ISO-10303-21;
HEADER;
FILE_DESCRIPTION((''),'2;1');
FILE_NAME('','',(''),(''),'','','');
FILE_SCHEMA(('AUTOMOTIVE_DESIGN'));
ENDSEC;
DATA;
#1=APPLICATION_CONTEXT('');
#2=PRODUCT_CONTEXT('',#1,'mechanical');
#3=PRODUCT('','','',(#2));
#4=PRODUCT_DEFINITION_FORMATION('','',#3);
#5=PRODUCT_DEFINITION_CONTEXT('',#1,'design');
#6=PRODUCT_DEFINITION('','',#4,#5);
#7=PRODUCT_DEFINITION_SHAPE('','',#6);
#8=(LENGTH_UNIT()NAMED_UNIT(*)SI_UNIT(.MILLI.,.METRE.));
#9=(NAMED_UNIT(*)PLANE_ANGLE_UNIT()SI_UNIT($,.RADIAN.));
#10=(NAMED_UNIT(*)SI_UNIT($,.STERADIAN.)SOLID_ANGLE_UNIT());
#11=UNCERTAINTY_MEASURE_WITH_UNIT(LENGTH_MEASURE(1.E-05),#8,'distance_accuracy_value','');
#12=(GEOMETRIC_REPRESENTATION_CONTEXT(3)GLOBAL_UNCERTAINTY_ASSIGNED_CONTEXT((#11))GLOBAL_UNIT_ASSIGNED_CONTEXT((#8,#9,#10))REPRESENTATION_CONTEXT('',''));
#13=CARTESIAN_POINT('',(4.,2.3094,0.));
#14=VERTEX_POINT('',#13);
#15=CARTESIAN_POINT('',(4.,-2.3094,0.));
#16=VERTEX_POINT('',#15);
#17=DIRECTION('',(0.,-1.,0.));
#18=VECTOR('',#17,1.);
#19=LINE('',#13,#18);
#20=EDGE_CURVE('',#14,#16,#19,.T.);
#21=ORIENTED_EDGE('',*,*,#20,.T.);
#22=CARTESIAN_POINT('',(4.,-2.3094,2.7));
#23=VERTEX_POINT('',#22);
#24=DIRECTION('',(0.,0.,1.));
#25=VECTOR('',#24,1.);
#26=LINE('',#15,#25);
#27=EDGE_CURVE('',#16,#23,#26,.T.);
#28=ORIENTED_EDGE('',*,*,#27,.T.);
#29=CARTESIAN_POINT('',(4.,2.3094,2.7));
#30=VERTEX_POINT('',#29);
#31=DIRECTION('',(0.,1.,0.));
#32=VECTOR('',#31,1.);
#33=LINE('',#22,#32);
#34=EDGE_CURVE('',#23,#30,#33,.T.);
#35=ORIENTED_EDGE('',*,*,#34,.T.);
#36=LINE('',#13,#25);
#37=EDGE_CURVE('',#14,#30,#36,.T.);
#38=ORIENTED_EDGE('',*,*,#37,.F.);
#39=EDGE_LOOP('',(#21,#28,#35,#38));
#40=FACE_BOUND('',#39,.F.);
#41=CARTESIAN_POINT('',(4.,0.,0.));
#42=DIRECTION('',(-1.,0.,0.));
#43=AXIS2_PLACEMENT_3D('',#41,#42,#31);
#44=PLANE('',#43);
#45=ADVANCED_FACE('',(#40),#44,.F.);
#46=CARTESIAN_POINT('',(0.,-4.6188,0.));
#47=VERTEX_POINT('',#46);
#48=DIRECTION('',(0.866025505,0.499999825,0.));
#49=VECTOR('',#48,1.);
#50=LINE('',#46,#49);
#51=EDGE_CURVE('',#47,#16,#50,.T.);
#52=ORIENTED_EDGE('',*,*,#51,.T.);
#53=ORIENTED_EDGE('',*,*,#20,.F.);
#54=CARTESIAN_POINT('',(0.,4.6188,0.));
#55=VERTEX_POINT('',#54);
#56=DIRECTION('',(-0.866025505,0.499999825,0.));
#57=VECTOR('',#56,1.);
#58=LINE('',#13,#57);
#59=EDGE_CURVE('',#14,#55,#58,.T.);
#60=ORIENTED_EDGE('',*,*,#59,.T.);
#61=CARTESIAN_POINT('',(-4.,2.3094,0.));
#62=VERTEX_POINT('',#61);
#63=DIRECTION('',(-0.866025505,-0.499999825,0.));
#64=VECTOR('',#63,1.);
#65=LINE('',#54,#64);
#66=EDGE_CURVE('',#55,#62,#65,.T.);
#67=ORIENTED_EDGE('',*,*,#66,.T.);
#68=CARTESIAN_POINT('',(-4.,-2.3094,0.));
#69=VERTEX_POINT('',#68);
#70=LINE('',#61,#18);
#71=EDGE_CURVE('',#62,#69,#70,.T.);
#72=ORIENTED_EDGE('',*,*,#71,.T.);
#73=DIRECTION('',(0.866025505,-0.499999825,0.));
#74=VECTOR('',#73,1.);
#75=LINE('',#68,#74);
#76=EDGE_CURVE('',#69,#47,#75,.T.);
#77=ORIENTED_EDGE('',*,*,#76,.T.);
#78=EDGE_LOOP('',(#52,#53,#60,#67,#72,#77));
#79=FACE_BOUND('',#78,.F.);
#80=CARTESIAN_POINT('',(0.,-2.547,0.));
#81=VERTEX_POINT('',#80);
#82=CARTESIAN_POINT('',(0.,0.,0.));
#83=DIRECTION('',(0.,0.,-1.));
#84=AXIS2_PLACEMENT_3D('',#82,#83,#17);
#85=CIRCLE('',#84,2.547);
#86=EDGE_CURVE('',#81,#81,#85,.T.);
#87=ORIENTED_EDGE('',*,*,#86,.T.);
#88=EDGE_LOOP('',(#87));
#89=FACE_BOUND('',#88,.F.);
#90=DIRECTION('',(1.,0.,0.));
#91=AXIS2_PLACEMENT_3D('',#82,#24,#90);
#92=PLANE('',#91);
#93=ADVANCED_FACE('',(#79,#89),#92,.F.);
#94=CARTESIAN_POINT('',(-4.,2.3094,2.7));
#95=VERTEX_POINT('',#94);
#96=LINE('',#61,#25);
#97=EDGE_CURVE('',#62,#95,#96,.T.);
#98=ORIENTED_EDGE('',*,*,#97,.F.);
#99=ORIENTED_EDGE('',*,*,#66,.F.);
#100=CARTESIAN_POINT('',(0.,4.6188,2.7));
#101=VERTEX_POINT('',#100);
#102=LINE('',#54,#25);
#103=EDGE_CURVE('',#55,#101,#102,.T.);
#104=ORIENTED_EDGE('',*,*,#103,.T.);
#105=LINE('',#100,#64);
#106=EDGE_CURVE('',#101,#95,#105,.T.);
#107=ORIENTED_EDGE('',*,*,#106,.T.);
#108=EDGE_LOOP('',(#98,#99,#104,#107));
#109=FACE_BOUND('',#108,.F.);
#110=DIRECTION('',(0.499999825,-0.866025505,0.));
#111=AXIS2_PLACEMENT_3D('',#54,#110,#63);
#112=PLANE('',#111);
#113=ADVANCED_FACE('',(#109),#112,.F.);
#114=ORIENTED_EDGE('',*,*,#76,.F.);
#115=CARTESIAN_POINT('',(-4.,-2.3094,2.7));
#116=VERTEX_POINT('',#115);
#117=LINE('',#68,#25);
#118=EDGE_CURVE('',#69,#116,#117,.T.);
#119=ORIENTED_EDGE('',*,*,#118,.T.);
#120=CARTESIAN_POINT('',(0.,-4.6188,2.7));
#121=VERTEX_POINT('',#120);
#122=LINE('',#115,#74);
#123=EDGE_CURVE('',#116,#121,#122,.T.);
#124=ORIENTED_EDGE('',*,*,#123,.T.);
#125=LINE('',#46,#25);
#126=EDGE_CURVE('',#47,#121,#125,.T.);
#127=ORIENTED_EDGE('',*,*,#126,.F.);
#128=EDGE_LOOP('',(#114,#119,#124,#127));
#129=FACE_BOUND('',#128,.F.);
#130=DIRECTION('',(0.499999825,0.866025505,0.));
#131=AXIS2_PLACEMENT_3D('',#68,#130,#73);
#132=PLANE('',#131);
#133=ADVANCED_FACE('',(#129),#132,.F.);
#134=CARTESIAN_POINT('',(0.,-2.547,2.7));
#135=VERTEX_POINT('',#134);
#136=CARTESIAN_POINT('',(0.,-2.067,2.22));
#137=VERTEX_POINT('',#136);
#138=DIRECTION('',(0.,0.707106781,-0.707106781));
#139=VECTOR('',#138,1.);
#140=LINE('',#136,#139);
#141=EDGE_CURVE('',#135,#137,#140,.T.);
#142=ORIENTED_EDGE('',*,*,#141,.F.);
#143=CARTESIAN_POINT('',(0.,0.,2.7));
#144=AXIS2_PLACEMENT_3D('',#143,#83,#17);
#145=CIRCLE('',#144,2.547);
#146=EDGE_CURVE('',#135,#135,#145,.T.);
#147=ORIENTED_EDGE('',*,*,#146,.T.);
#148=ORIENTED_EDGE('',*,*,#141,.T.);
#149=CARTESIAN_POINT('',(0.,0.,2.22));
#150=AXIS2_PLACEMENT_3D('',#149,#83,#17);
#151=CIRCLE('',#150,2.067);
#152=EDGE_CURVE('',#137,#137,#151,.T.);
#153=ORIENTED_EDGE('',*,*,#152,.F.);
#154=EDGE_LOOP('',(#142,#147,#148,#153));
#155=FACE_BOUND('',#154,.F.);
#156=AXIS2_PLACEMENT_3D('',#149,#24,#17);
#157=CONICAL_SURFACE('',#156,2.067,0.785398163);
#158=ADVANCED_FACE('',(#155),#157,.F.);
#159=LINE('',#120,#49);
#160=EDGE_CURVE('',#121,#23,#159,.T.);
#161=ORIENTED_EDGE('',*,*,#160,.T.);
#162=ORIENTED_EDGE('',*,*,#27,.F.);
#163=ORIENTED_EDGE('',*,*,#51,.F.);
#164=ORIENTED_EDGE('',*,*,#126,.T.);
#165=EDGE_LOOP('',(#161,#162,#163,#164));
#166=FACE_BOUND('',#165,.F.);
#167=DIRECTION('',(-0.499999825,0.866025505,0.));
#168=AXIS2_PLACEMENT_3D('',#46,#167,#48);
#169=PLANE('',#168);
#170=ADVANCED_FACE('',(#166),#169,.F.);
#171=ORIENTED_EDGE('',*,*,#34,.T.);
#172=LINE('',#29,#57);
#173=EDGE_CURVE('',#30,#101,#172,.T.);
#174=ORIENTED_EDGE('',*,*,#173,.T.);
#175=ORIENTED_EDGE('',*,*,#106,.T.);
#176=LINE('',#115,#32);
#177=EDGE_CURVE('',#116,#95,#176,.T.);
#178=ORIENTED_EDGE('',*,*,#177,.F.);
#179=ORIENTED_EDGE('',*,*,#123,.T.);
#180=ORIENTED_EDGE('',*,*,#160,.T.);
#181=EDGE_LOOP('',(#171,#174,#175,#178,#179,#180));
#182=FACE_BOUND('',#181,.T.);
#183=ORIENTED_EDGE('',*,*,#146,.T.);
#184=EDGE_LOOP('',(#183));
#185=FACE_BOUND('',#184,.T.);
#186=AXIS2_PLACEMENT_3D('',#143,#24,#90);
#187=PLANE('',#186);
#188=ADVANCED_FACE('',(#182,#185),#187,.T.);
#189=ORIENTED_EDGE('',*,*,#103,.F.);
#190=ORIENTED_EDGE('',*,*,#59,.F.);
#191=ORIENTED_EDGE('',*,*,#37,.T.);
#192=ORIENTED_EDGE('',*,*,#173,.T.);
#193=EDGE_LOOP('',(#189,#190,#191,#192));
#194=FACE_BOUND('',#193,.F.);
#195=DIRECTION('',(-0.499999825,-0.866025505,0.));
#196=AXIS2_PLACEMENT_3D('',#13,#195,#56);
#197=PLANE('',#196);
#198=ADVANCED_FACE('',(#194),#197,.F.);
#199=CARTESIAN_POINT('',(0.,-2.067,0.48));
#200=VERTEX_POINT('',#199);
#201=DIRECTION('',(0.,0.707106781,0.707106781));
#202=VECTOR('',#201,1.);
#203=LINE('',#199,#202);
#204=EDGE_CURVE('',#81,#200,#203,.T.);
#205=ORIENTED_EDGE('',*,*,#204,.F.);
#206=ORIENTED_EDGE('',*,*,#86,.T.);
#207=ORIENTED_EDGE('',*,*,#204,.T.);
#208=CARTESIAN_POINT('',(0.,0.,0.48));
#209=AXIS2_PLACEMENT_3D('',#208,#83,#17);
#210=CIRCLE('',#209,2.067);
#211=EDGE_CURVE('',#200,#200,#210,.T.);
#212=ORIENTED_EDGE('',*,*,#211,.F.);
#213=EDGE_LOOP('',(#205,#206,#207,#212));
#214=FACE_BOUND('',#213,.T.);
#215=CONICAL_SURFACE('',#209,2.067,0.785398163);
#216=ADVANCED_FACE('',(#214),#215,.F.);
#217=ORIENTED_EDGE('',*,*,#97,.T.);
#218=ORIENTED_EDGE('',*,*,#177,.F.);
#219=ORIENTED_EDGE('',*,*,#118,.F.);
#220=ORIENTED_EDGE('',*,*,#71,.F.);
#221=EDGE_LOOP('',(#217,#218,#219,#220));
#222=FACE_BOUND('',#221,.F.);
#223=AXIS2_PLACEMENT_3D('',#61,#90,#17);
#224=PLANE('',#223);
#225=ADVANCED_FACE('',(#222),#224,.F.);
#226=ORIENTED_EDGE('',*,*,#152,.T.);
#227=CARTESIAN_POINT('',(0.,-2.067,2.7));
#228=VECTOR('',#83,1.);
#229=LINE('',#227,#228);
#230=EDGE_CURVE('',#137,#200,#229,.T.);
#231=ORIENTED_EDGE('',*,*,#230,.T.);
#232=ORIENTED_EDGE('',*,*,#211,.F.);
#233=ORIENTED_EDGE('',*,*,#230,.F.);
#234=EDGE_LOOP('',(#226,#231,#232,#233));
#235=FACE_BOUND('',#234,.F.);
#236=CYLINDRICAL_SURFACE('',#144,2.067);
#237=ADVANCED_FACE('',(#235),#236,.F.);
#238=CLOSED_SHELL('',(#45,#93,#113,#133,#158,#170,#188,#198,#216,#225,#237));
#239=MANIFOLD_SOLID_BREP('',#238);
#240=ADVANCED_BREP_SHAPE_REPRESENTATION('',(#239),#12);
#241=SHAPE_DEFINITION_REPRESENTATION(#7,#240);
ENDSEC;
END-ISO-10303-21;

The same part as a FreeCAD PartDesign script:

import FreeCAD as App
import Part
import Sketcher

V = App.Vector
Q = App.Units.Quantity


def edges_at(feature, points):
    """Names of the edges that pass closest to the given points."""
    edges = feature.Shape.Edges
    near = lambda p: min(range(len(edges)), key=lambda i: edges[i].distToShape(Part.Vertex(*p))[0])
    return sorted({f"Edge{near(p) + 1}" for p in points})

doc = App.newDocument("Part")
body = doc.addObject("PartDesign::Body", "Body")

sketch1 = body.newObject("Sketcher::SketchObject", "Sketch")
sketch1.AttachmentSupport = (doc.getObject("XY_Plane"), [""])
sketch1.MapMode = "FlatFace"
sketch1.addGeometry(Part.LineSegment(V(0, 4.6, 0), V(-4, 2.3, 0)), False)
sketch1.addGeometry(Part.LineSegment(V(-4, 2.3, 0), V(-4, -2.3, 0)), False)
sketch1.addGeometry(Part.LineSegment(V(-4, -2.3, 0), V(0, -4.6, 0)), False)
sketch1.addGeometry(Part.LineSegment(V(0, -4.6, 0), V(4, -2.3, 0)), False)
sketch1.addGeometry(Part.LineSegment(V(4, -2.3, 0), V(4, 2.3, 0)), False)
sketch1.addGeometry(Part.LineSegment(V(4, 2.3, 0), V(0, 4.6, 0)), False)
sketch1.addConstraint(Sketcher.Constraint("Coincident", 0, 2, 1, 1))
sketch1.addConstraint(Sketcher.Constraint("Coincident", 1, 2, 2, 1))
sketch1.addConstraint(Sketcher.Constraint("Coincident", 2, 2, 3, 1))
sketch1.addConstraint(Sketcher.Constraint("Coincident", 3, 2, 4, 1))
sketch1.addConstraint(Sketcher.Constraint("Coincident", 4, 2, 5, 1))
sketch1.addConstraint(Sketcher.Constraint("Coincident", 5, 2, 0, 1))
sketch1.addConstraint(Sketcher.Constraint("Vertical", 1))
sketch1.addConstraint(Sketcher.Constraint("Vertical", 4))
sketch1.addConstraint(Sketcher.Constraint("Symmetric", 0, 2, 3, 2, -1, 1))
sketch1.addConstraint(Sketcher.Constraint("Symmetric", 2, 2, 5, 2, -1, 1))
sketch1.addConstraint(Sketcher.Constraint("PointOnObject", 2, 2, -2))
sketch1.addConstraint(Sketcher.Constraint("Parallel", 2, 5))
sketch1.addConstraint(Sketcher.Constraint("Horizontal", 1, 2, 3, 2))
sketch1.addConstraint(Sketcher.Constraint("DistanceX", 1, 2, 3, 2, 8.0))
sketch1.addConstraint(Sketcher.Constraint("Angle", 0, Q("-150 deg")))
sketch1.addConstraint(Sketcher.Constraint("DistanceY", 1, 2, 1, 1, 4.6188))
pad1 = body.newObject("PartDesign::Pad", "Pad")
pad1.Profile = sketch1
pad1.Length = 2.7

sketch2 = body.newObject("Sketcher::SketchObject", "Sketch001")
sketch2.AttachmentSupport = (doc.getObject("XY_Plane"), [""])
sketch2.MapMode = "FlatFace"
sketch2.AttachmentOffset = App.Placement(V(0, 0, 2.7), App.Rotation())
sketch2.addGeometry(Part.Circle(V(0, 0, 0), V(0, 0, 1), 2.1), False)
sketch2.addConstraint(Sketcher.Constraint("Coincident", 0, 3, -1, 1))
sketch2.addConstraint(Sketcher.Constraint("Diameter", 0, 4.134))
doc.recompute()
hole = body.newObject("PartDesign::Hole", "Hole")
hole.Profile = sketch2
hole.ThreadType = "None"
hole.Diameter = 4.134
hole.DepthType = "ThroughAll"
doc.recompute()

chamfer = body.newObject("PartDesign::Chamfer", "Chamfer")
chamfer.Base = (hole, edges_at(hole, [(0, 2.067, 2.7), (0, 2.067, 0)]))
chamfer.Size = 0.48

doc.recompute()
